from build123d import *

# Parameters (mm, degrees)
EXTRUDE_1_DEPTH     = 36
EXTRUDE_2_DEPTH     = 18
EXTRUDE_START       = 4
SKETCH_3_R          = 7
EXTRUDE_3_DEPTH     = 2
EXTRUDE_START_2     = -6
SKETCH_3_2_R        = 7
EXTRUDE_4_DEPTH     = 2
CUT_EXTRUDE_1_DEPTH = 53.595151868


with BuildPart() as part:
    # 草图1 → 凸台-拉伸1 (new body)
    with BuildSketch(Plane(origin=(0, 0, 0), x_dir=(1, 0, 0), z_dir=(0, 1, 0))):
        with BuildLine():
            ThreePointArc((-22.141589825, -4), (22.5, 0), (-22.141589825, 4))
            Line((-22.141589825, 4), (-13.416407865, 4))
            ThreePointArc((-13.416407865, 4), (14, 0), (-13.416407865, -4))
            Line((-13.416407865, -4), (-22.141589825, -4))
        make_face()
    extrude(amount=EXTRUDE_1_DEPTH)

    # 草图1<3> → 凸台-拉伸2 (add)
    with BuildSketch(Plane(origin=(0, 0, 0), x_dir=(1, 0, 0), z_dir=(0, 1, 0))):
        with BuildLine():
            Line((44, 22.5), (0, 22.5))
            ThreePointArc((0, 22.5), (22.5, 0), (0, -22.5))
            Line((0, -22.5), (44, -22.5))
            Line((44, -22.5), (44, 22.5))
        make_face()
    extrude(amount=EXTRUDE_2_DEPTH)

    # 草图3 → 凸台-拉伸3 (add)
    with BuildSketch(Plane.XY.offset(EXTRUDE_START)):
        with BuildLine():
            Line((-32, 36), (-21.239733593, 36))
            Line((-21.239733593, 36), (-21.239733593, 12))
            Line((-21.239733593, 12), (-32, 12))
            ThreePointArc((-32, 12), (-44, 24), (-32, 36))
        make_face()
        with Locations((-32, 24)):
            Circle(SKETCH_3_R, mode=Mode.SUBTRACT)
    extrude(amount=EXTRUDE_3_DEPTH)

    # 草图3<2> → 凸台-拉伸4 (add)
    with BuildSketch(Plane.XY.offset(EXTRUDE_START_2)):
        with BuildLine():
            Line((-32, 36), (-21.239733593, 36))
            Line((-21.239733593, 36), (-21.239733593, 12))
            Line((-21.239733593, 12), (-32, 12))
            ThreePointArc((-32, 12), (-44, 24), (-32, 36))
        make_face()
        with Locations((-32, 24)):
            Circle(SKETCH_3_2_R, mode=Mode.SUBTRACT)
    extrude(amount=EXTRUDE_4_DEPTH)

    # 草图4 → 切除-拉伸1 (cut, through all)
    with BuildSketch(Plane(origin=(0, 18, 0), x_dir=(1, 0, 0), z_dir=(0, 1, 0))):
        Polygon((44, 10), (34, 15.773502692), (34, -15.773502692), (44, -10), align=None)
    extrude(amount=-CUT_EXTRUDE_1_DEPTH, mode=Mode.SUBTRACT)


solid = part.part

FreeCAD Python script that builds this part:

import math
import FreeCAD as App
import Part
import Sketcher
Q = App.Units.Quantity

doc = App.newDocument("Part")
body = doc.addObject("PartDesign::Body", "Body")

# Sketch on XZ plane
sketch1 = body.newObject("Sketcher::SketchObject", "Sketch")
sketch1.AttachmentSupport = (doc.getObject("XZ_Plane"), [""])
sketch1.MapMode = "FlatFace"
sketch1.addGeometry(Part.ArcOfCircle(Part.Circle(App.Vector(0, 0, 0), App.Vector(0, 0, 1), 22.5), math.radians(-169.759652), math.radians(169.759652)), False)
sketch1.addGeometry(Part.LineSegment(App.Vector(-22.14159, -4, 0), App.Vector(-13.416408, -4, 0)), False)
sketch1.addGeometry(Part.ArcOfCircle(Part.Circle(App.Vector(0, 0, 0), App.Vector(0, 0, 1), 14), math.radians(-163.39845), math.radians(163.39845)), False)
sketch1.addGeometry(Part.LineSegment(App.Vector(-13.416408, 4, 0), App.Vector(-22.14159, 4, 0)), False)
sketch1.addConstraint(Sketcher.Constraint("Coincident", 0, 1, 1, 1))
sketch1.addConstraint(Sketcher.Constraint("Coincident", 1, 2, 2, 1))
sketch1.addConstraint(Sketcher.Constraint("Coincident", 2, 2, 3, 1))
sketch1.addConstraint(Sketcher.Constraint("Coincident", 3, 2, 0, 2))
sketch1.addConstraint(Sketcher.Constraint("Horizontal", 1))
sketch1.addConstraint(Sketcher.Constraint("Horizontal", 3))
sketch1.addConstraint(Sketcher.Constraint("Coincident", 0, 3, -1, 1))
sketch1.addConstraint(Sketcher.Constraint("Coincident", 2, 3, -1, 1))
sketch1.addConstraint(Sketcher.Constraint("Vertical", 1, 2, 2, 2))
sketch1.addConstraint(Sketcher.Constraint("Radius", 2, 14.0))
sketch1.addConstraint(Sketcher.Constraint("Radius", 0, 22.5))
sketch1.addConstraint(Sketcher.Constraint("DistanceY", 0, 1, -1, 1, 4.0))
pad1 = body.newObject("PartDesign::Pad", "Pad")
pad1.Profile = sketch1
pad1.Length = 36
pad1.Reversed = True

# Sketch on XZ plane
sketch2 = body.newObject("Sketcher::SketchObject", "Sketch001")
sketch2.AttachmentSupport = (doc.getObject("XZ_Plane"), [""])
sketch2.MapMode = "FlatFace"
sketch2.addGeometry(Part.LineSegment(App.Vector(44, -22.5, 0), App.Vector(0, -22.5, 0)), False)
sketch2.addGeometry(Part.ArcOfCircle(Part.Circle(App.Vector(0, 0, 0), App.Vector(0, 0, 1), 22.5), math.radians(-90), math.radians(90)), False)
sketch2.addGeometry(Part.LineSegment(App.Vector(0, 22.5, 0), App.Vector(44, 22.5, 0)), False)
sketch2.addGeometry(Part.LineSegment(App.Vector(44, 22.5, 0), App.Vector(44, -22.5, 0)), False)
sketch2.addConstraint(Sketcher.Constraint("Tangent", 0, 2, 1, 1))
sketch2.addConstraint(Sketcher.Constraint("Tangent", 1, 2, 2, 1))
sketch2.addConstraint(Sketcher.Constraint("Coincident", 2, 2, 3, 1))
sketch2.addConstraint(Sketcher.Constraint("Coincident", 3, 2, 0, 1))
sketch2.addConstraint(Sketcher.Constraint("Horizontal", 0))
sketch2.addConstraint(Sketcher.Constraint("Horizontal", 2))
sketch2.addConstraint(Sketcher.Constraint("Vertical", 3))
sketch2.addConstraint(Sketcher.Constraint("Coincident", 1, 3, -1, 1))
sketch2.addConstraint(Sketcher.Constraint("Radius", 1, 22.5))
sketch2.addConstraint(Sketcher.Constraint("DistanceX", 0, 2, 0, 1, 44.0))
pad2 = body.newObject("PartDesign::Pad", "Pad001")
pad2.Profile = sketch2
pad2.Length = 18
pad2.Reversed = True

# Sketch on XY plane
sketch3 = body.newObject("Sketcher::SketchObject", "Sketch002")
sketch3.AttachmentSupport = (doc.getObject("XY_Plane"), [""])
sketch3.MapMode = "FlatFace"
sketch3.AttachmentOffset = App.Placement(App.Vector(0, 0, 4), App.Rotation())
sketch3.addGeometry(Part.LineSegment(App.Vector(-21.239734, 36, 0), App.Vector(-32, 36, 0)), False)
sketch3.addGeometry(Part.ArcOfCircle(Part.Circle(App.Vector(-32, 24, 0), App.Vector(0, 0, 1), 12), math.radians(90), math.radians(270)), False)
sketch3.addGeometry(Part.LineSegment(App.Vector(-32, 12, 0), App.Vector(-21.239734, 12, 0)), False)
sketch3.addGeometry(Part.LineSegment(App.Vector(-21.239734, 12, 0), App.Vector(-21.239734, 36, 0)), False)
sketch3.addGeometry(Part.Circle(App.Vector(-32, 24, 0), App.Vector(0, 0, 1), 7), False)
sketch3.addConstraint(Sketcher.Constraint("Tangent", 0, 2, 1, 1))
sketch3.addConstraint(Sketcher.Constraint("Tangent", 1, 2, 2, 1))
sketch3.addConstraint(Sketcher.Constraint("Coincident", 2, 2, 3, 1))
sketch3.addConstraint(Sketcher.Constraint("Coincident", 3, 2, 0, 1))
sketch3.addConstraint(Sketcher.Constraint("Horizontal", 0))
sketch3.addConstraint(Sketcher.Constraint("Horizontal", 2))
sketch3.addConstraint(Sketcher.Constraint("Vertical", 3))
sketch3.addConstraint(Sketcher.Constraint("Coincident", 4, 3, 1, 3))
sketch3.addConstraint(Sketcher.Constraint("Diameter", 4, 14.0))
sketch3.addConstraint(Sketcher.Constraint("Radius", 1, 12.0))
sketch3.addConstraint(Sketcher.Constraint("DistanceX", 1, 3, -1, 1, 32.0))
sketch3.addConstraint(Sketcher.Constraint("DistanceY", -1, 1, 1, 3, 24.0))
sketch3.addConstraint(Sketcher.Constraint("DistanceX", 0, 2, 0, 1, 10.760266))
pad3 = body.newObject("PartDesign::Pad", "Pad002")
pad3.Profile = sketch3
pad3.Length = 2

# Sketch on XY plane
sketch4 = body.newObject("Sketcher::SketchObject", "Sketch003")
sketch4.AttachmentSupport = (doc.getObject("XY_Plane"), [""])
sketch4.MapMode = "FlatFace"
sketch4.AttachmentOffset = App.Placement(App.Vector(0, 0, -6), App.Rotation())
sketch4.addGeometry(Part.LineSegment(App.Vector(-21.239734, 36, 0), App.Vector(-32, 36, 0)), False)
sketch4.addGeometry(Part.ArcOfCircle(Part.Circle(App.Vector(-32, 24, 0), App.Vector(0, 0, 1), 12), math.radians(90), math.radians(270)), False)
sketch4.addGeometry(Part.LineSegment(App.Vector(-32, 12, 0), App.Vector(-21.239734, 12, 0)), False)
sketch4.addGeometry(Part.LineSegment(App.Vector(-21.239734, 12, 0), App.Vector(-21.239734, 36, 0)), False)
sketch4.addGeometry(Part.Circle(App.Vector(-32, 24, 0), App.Vector(0, 0, 1), 7), False)
sketch4.addConstraint(Sketcher.Constraint("Tangent", 0, 2, 1, 1))
sketch4.addConstraint(Sketcher.Constraint("Tangent", 1, 2, 2, 1))
sketch4.addConstraint(Sketcher.Constraint("Coincident", 2, 2, 3, 1))
sketch4.addConstraint(Sketcher.Constraint("Coincident", 3, 2, 0, 1))
sketch4.addConstraint(Sketcher.Constraint("Horizontal", 0))
sketch4.addConstraint(Sketcher.Constraint("Horizontal", 2))
sketch4.addConstraint(Sketcher.Constraint("Vertical", 3))
sketch4.addConstraint(Sketcher.Constraint("Coincident", 4, 3, 1, 3))
sketch4.addConstraint(Sketcher.Constraint("Diameter", 4, 14.0))
sketch4.addConstraint(Sketcher.Constraint("Radius", 1, 12.0))
sketch4.addConstraint(Sketcher.Constraint("DistanceX", 1, 3, -1, 1, 32.0))
sketch4.addConstraint(Sketcher.Constraint("DistanceY", -1, 1, 1, 3, 24.0))
sketch4.addConstraint(Sketcher.Constraint("DistanceX", 0, 2, 0, 1, 10.760266))
pad4 = body.newObject("PartDesign::Pad", "Pad003")
pad4.Profile = sketch4
pad4.Length = 2

# Sketch on XZ plane
sketch5 = body.newObject("Sketcher::SketchObject", "Sketch004")
sketch5.AttachmentSupport = (doc.getObject("XZ_Plane"), [""])
sketch5.MapMode = "FlatFace"
sketch5.AttachmentOffset = App.Placement(App.Vector(0, 0, -18), App.Rotation())
sketch5.addGeometry(Part.LineSegment(App.Vector(44, -10, 0), App.Vector(34, -15.773503, 0)), False)
sketch5.addGeometry(Part.LineSegment(App.Vector(34, -15.773503, 0), App.Vector(34, 15.773503, 0)), False)
sketch5.addGeometry(Part.LineSegment(App.Vector(34, 15.773503, 0), App.Vector(44, 10, 0)), False)
sketch5.addGeometry(Part.LineSegment(App.Vector(44, 10, 0), App.Vector(44, -10, 0)), False)
sketch5.addConstraint(Sketcher.Constraint("Coincident", 0, 2, 1, 1))
sketch5.addConstraint(Sketcher.Constraint("Coincident", 1, 2, 2, 1))
sketch5.addConstraint(Sketcher.Constraint("Coincident", 2, 2, 3, 1))
sketch5.addConstraint(Sketcher.Constraint("Coincident", 3, 2, 0, 1))
sketch5.addConstraint(Sketcher.Constraint("Vertical", 1))
sketch5.addConstraint(Sketcher.Constraint("Vertical", 3))
sketch5.addConstraint(Sketcher.Constraint("Equal", 0, 2))
sketch5.addConstraint(Sketcher.Constraint("DistanceY", 3, 2, 3, 1, 20.0))
sketch5.addConstraint(Sketcher.Constraint("Angle", 0, Q("-150 deg")))
sketch5.addConstraint(Sketcher.Constraint("DistanceX", -1, 1, 0, 2, 34.0))
sketch5.addConstraint(Sketcher.Constraint("DistanceX", -1, 1, 2, 2, 44.0))
sketch5.addConstraint(Sketcher.Constraint("DistanceY", -1, 1, 2, 2, 10.0))
pocket1 = body.newObject("PartDesign::Pocket", "Pocket")
pocket1.Profile = sketch5
pocket1.Type = "ThroughAll"
pocket1.Reversed = True

doc.recompute()
